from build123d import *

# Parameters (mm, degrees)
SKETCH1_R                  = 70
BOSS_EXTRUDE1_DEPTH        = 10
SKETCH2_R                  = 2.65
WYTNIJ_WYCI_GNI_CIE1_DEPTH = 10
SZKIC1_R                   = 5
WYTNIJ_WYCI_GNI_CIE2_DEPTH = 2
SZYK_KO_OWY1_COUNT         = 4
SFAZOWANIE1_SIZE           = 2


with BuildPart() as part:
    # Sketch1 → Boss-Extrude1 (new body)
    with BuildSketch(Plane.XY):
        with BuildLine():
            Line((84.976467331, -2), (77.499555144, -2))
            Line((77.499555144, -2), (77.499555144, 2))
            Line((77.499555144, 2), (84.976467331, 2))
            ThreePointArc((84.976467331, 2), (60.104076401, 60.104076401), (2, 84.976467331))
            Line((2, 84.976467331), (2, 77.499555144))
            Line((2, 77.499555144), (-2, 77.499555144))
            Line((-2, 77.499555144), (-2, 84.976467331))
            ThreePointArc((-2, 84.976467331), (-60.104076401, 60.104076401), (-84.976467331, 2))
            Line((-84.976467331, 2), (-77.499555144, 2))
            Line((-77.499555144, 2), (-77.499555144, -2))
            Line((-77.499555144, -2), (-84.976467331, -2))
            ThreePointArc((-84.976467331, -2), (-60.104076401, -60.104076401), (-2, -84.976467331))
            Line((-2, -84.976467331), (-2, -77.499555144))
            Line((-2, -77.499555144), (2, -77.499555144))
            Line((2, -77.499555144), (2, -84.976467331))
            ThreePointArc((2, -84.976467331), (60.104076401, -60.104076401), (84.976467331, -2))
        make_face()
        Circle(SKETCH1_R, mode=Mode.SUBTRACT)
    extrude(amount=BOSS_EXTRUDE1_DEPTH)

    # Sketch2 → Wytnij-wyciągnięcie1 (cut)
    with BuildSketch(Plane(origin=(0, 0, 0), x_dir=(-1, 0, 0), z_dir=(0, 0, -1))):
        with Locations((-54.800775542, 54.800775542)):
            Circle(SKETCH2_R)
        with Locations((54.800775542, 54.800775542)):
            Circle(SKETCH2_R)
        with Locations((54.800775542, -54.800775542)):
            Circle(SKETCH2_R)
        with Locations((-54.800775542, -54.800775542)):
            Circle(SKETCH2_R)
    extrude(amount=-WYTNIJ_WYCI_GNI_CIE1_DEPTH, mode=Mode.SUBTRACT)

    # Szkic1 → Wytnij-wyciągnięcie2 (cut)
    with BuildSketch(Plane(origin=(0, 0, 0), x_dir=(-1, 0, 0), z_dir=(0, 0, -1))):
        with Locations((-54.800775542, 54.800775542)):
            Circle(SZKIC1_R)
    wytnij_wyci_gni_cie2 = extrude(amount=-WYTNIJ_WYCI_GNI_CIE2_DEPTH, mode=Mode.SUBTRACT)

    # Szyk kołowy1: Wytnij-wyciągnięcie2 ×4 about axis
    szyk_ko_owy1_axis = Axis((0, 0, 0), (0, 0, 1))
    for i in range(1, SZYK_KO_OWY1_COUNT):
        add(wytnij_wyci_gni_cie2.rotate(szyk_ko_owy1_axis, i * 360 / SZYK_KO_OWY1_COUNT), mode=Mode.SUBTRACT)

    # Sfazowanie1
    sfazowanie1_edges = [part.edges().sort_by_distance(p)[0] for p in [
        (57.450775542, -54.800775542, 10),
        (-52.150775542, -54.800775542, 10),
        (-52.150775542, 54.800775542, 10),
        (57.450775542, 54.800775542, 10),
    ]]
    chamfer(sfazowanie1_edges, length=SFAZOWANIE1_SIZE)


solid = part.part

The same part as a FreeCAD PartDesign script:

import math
import FreeCAD as App
import Part
import Sketcher

V = App.Vector


def edges_at(feature, points):
    """Names of the edges that pass closest to the given points."""
    edges = feature.Shape.Edges
    near = lambda p: min(range(len(edges)), key=lambda i: edges[i].distToShape(Part.Vertex(*p))[0])
    return sorted({f"Edge{near(p) + 1}" for p in points})

doc = App.newDocument("Part")
body = doc.addObject("PartDesign::Body", "Body")

# Sketch on XY plane
sketch1 = body.newObject("Sketcher::SketchObject", "Sketch")
sketch1.AttachmentSupport = (doc.getObject("XY_Plane"), [""])
sketch1.MapMode = "FlatFace"
sketch1.addGeometry(Part.LineSegment(V(85, -2, 0), V(77.5, -2, 0)), False)
sketch1.addGeometry(Part.LineSegment(V(77.5, -2, 0), V(77.5, 2, 0)), False)
sketch1.addGeometry(Part.LineSegment(V(77.5, 2, 0), V(85, 2, 0)), False)
sketch1.addGeometry(Part.ArcOfCircle(Part.Circle(V(0, 0, 0), V(0, 0, 1), 85), math.radians(1), math.radians(89)), False)
sketch1.addGeometry(Part.LineSegment(V(2, 85, 0), V(2, 77.5, 0)), False)
sketch1.addGeometry(Part.LineSegment(V(2, 77.5, 0), V(-2, 77.5, 0)), False)
sketch1.addGeometry(Part.LineSegment(V(-2, 77.5, 0), V(-2, 85, 0)), False)
sketch1.addGeometry(Part.ArcOfCircle(Part.Circle(V(0, 0, 0), V(0, 0, 1), 85), math.radians(91), math.radians(179)), False)
sketch1.addGeometry(Part.LineSegment(V(-85, 2, 0), V(-77.5, 2, 0)), False)
sketch1.addGeometry(Part.LineSegment(V(-77.5, 2, 0), V(-77.5, -2, 0)), False)
sketch1.addGeometry(Part.LineSegment(V(-77.5, -2, 0), V(-85, -2, 0)), False)
sketch1.addGeometry(Part.ArcOfCircle(Part.Circle(V(0, 0, 0), V(0, 0, 1), 85), math.radians(-179), math.radians(-91)), False)
sketch1.addGeometry(Part.LineSegment(V(-2, -85, 0), V(-2, -77.5, 0)), False)
sketch1.addGeometry(Part.LineSegment(V(-2, -77.5, 0), V(2, -77.5, 0)), False)
sketch1.addGeometry(Part.LineSegment(V(2, -77.5, 0), V(2, -85, 0)), False)
sketch1.addGeometry(Part.ArcOfCircle(Part.Circle(V(0, 0, 0), V(0, 0, 1), 85), math.radians(-89), math.radians(-1)), False)
sketch1.addGeometry(Part.Circle(V(0, 0, 0), V(0, 0, 1), 70), False)
sketch1.addConstraint(Sketcher.Constraint("Coincident", 0, 2, 1, 1))
sketch1.addConstraint(Sketcher.Constraint("Coincident", 1, 2, 2, 1))
sketch1.addConstraint(Sketcher.Constraint("Coincident", 2, 2, 3, 1))
sketch1.addConstraint(Sketcher.Constraint("Coincident", 3, 2, 4, 1))
sketch1.addConstraint(Sketcher.Constraint("Coincident", 4, 2, 5, 1))
sketch1.addConstraint(Sketcher.Constraint("Coincident", 5, 2, 6, 1))
sketch1.addConstraint(Sketcher.Constraint("Coincident", 6, 2, 7, 1))
sketch1.addConstraint(Sketcher.Constraint("Coincident", 7, 2, 8, 1))
sketch1.addConstraint(Sketcher.Constraint("Coincident", 8, 2, 9, 1))
sketch1.addConstraint(Sketcher.Constraint("Coincident", 9, 2, 10, 1))
sketch1.addConstraint(Sketcher.Constraint("Coincident", 10, 2, 11, 1))
sketch1.addConstraint(Sketcher.Constraint("Coincident", 11, 2, 12, 1))
sketch1.addConstraint(Sketcher.Constraint("Coincident", 12, 2, 13, 1))
sketch1.addConstraint(Sketcher.Constraint("Coincident", 13, 2, 14, 1))
sketch1.addConstraint(Sketcher.Constraint("Coincident", 14, 2, 15, 1))
sketch1.addConstraint(Sketcher.Constraint("Coincident", 15, 2, 0, 1))
sketch1.addConstraint(Sketcher.Constraint("Horizontal", 0))
sketch1.addConstraint(Sketcher.Constraint("Vertical", 1))
sketch1.addConstraint(Sketcher.Constraint("Horizontal", 2))
sketch1.addConstraint(Sketcher.Constraint("Vertical", 4))
sketch1.addConstraint(Sketcher.Constraint("Horizontal", 5))
sketch1.addConstraint(Sketcher.Constraint("Vertical", 6))
sketch1.addConstraint(Sketcher.Constraint("Horizontal", 8))
sketch1.addConstraint(Sketcher.Constraint("Vertical", 9))
sketch1.addConstraint(Sketcher.Constraint("Horizontal", 10))
sketch1.addConstraint(Sketcher.Constraint("Vertical", 12))
sketch1.addConstraint(Sketcher.Constraint("Horizontal", 13))
sketch1.addConstraint(Sketcher.Constraint("Vertical", 14))
sketch1.addConstraint(Sketcher.Constraint("Coincident", 3, 3, -1, 1))
sketch1.addConstraint(Sketcher.Constraint("Coincident", 7, 3, -1, 1))
sketch1.addConstraint(Sketcher.Constraint("Coincident", 11, 3, -1, 1))
sketch1.addConstraint(Sketcher.Constraint("Coincident", 15, 3, -1, 1))
sketch1.addConstraint(Sketcher.Constraint("Coincident", 16, 3, -1, 1))
sketch1.addConstraint(Sketcher.Constraint("Equal", 3, 7))
sketch1.addConstraint(Sketcher.Constraint("Equal", 7, 11))
sketch1.addConstraint(Sketcher.Constraint("Equal", 11, 15))
sketch1.addConstraint(Sketcher.Constraint("Symmetric", 0, 2, 8, 2, -1, 1))
sketch1.addConstraint(Sketcher.Constraint("Symmetric", 4, 2, 12, 2, -1, 1))
sketch1.addConstraint(Sketcher.Constraint("Horizontal", 3, 2, 6, 2))
sketch1.addConstraint(Sketcher.Constraint("Horizontal", 2, 2, 7, 2))
sketch1.addConstraint(Sketcher.Constraint("Horizontal", 0, 2, 9, 2))
sketch1.addConstraint(Sketcher.Constraint("Horizontal", 11, 2, 14, 2))
sketch1.addConstraint(Sketcher.Constraint("Equal", 13, 1))
sketch1.addConstraint(Sketcher.Constraint("Equal", 10, 4))
sketch1.addConstraint(Sketcher.Constraint("Diameter", 16, 140.0))
sketch1.addConstraint(Sketcher.Constraint("Radius", 3, 85.0))
sketch1.addConstraint(Sketcher.Constraint("DistanceX", 5, 2, 5, 1, 4.0))
sketch1.addConstraint(Sketcher.Constraint("DistanceX", 0, 2, 0, 1, 7.476912))
pad1 = body.newObject("PartDesign::Pad", "Pad")
pad1.Profile = sketch1
pad1.Length = 10

# Sketch on XY plane
sketch2 = body.newObject("Sketcher::SketchObject", "Sketch001")
sketch2.AttachmentSupport = (doc.getObject("XY_Plane"), [""])
sketch2.MapMode = "FlatFace"
sketch2.addGeometry(Part.Circle(V(54.8, 54.8, 0), V(0, 0, 1), 2.6), False)
sketch2.addGeometry(Part.Circle(V(-54.8, 54.8, 0), V(0, 0, 1), 2.6), False)
sketch2.addGeometry(Part.Circle(V(-54.8, -54.8, 0), V(0, 0, 1), 2.6), False)
sketch2.addGeometry(Part.Circle(V(54.8, -54.8, 0), V(0, 0, 1), 2.6), False)
sketch2.addConstraint(Sketcher.Constraint("Equal", 0, 1))
sketch2.addConstraint(Sketcher.Constraint("Equal", 1, 2))
sketch2.addConstraint(Sketcher.Constraint("Equal", 2, 3))
sketch2.addConstraint(Sketcher.Constraint("Symmetric", 0, 3, 2, 3, -1, 1))
sketch2.addConstraint(Sketcher.Constraint("Symmetric", 1, 3, 3, 3, -1, 1))
sketch2.addConstraint(Sketcher.Constraint("Symmetric", 0, 3, 1, 3, -2))
sketch2.addConstraint(Sketcher.Constraint("Diameter", 0, 5.3))
sketch2.addConstraint(Sketcher.Constraint("DistanceX", 1, 3, 0, 3, 109.601551))
sketch2.addConstraint(Sketcher.Constraint("DistanceY", 2, 3, 1, 3, 109.601551))
pocket1 = body.newObject("PartDesign::Pocket", "Pocket")
pocket1.Profile = sketch2
pocket1.Length = 10
pocket1.Reversed = True

# Sketch on XY plane
sketch3 = body.newObject("Sketcher::SketchObject", "Sketch002")
sketch3.AttachmentSupport = (doc.getObject("XY_Plane"), [""])
sketch3.MapMode = "FlatFace"
sketch3.addGeometry(Part.Circle(V(55, 55, 0), V(0, 0, 1), 5), False)
sketch3.addConstraint(Sketcher.Constraint("Diameter", 0, 10.0))
sketch3.addConstraint(Sketcher.Constraint("DistanceX", -1, 1, 0, 3, 54.800776))
sketch3.addConstraint(Sketcher.Constraint("DistanceY", -1, 1, 0, 3, 54.800776))
pocket2 = body.newObject("PartDesign::Pocket", "Pocket001")
pocket2.Profile = sketch3
pocket2.Length = 2
pocket2.Reversed = True
doc.recompute()

polarpattern = body.newObject("PartDesign::PolarPattern", "PolarPattern")
polarpattern.Originals = [pocket2]
polarpattern.Axis = (doc.getObject("Z_Axis"), [""])
polarpattern.Angle = 360
polarpattern.Occurrences = 4
body.Tip = polarpattern
doc.recompute()

chamfer = body.newObject("PartDesign::Chamfer", "Chamfer")
chamfer.Base = (polarpattern, edges_at(polarpattern, [
    (57.451, -54.801, 10),
    (-52.151, -54.801, 10),
    (-52.151, 54.801, 10),
    (57.451, 54.801, 10),
]))
chamfer.Size = 2

doc.recompute()
